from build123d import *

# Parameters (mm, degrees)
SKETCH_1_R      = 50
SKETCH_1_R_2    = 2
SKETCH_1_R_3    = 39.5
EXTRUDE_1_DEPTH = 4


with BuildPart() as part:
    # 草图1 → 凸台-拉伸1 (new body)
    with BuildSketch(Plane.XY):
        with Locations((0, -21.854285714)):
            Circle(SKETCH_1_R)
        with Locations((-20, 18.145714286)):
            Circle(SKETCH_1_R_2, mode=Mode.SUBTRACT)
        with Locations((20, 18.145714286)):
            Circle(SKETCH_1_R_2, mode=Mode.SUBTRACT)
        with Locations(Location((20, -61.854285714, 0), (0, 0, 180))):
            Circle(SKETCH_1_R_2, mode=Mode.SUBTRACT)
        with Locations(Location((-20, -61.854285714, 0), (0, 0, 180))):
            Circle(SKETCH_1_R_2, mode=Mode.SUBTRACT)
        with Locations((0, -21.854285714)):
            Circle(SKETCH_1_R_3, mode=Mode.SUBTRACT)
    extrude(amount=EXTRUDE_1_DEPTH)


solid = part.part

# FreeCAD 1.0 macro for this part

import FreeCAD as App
import Part
import Sketcher
from FreeCAD import Vector

doc = App.newDocument("Part")
params = doc.addObject("Spreadsheet::Sheet", "Params")
for row, (alias, value) in enumerate([
    ("sketch1_diameter", "100 mm"),
    ("sketch1_diameter2", "4 mm"),
    ("sketch1_diameter3", "79 mm"),
    ("pad1_length", "4 mm"),
], start=1):
    params.set(f"A{row}", alias)
    params.set(f"B{row}", "=" + value)
    params.setAlias(f"B{row}", alias)

body = doc.addObject("PartDesign::Body", "Body")

sketch1 = body.newObject("Sketcher::SketchObject", "Sketch")
sketch1.AttachmentSupport = (doc.getObject("XY_Plane"), [""])
sketch1.MapMode = "FlatFace"
sketch1.addGeometry([
    Part.Circle(Vector(0, -21.9, 0), Vector(0, 0, 1), 50),
    Part.Circle(Vector(-20, -61.9, 0), Vector(0, 0, 1), 2),
    Part.Circle(Vector(20, -61.9, 0), Vector(0, 0, 1), 2),
    Part.Circle(Vector(-20, 18.1, 0), Vector(0, 0, 1), 2),
    Part.Circle(Vector(0, -21.9, 0), Vector(0, 0, 1), 39.5),
    Part.Circle(Vector(20, 18.1, 0), Vector(0, 0, 1), 2),
], False)
sketch1.addConstraint([
    Sketcher.Constraint("Coincident", 4, 3, 0, 3),
    Sketcher.Constraint("Equal", 1, 2),
    Sketcher.Constraint("Equal", 2, 3),
    Sketcher.Constraint("Equal", 3, 5),
    Sketcher.Constraint("Symmetric", 1, 3, 2, 3, -2),
    Sketcher.Constraint("Symmetric", 3, 3, 5, 3, -2),
    Sketcher.Constraint("PointOnObject", 0, 3, -2),
    Sketcher.Constraint("Vertical", 1, 3, 3, 3),
    Sketcher.Constraint("Diameter", 0, 100.0),
    Sketcher.Constraint("Diameter", 1, 4.0),
    Sketcher.Constraint("Diameter", 4, 79.0),
    Sketcher.Constraint("DistanceX", 1, 3, -1, 1, 20.0),
    Sketcher.Constraint("DistanceY", 1, 3, 0, 3, 40.0),
    Sketcher.Constraint("DistanceY", 0, 3, 3, 3, 40.0),
    Sketcher.Constraint("DistanceY", 0, 3, -1, 1, 21.854286),
])
sketch1.setExpression("Constraints[8]", "Params.sketch1_diameter")
sketch1.setExpression("Constraints[9]", "Params.sketch1_diameter2")
sketch1.setExpression("Constraints[10]", "Params.sketch1_diameter3")
pad1 = body.newObject("PartDesign::Pad", "Pad")
pad1.Profile = sketch1
pad1.setExpression("Length", "Params.pad1_length")

doc.recompute()
